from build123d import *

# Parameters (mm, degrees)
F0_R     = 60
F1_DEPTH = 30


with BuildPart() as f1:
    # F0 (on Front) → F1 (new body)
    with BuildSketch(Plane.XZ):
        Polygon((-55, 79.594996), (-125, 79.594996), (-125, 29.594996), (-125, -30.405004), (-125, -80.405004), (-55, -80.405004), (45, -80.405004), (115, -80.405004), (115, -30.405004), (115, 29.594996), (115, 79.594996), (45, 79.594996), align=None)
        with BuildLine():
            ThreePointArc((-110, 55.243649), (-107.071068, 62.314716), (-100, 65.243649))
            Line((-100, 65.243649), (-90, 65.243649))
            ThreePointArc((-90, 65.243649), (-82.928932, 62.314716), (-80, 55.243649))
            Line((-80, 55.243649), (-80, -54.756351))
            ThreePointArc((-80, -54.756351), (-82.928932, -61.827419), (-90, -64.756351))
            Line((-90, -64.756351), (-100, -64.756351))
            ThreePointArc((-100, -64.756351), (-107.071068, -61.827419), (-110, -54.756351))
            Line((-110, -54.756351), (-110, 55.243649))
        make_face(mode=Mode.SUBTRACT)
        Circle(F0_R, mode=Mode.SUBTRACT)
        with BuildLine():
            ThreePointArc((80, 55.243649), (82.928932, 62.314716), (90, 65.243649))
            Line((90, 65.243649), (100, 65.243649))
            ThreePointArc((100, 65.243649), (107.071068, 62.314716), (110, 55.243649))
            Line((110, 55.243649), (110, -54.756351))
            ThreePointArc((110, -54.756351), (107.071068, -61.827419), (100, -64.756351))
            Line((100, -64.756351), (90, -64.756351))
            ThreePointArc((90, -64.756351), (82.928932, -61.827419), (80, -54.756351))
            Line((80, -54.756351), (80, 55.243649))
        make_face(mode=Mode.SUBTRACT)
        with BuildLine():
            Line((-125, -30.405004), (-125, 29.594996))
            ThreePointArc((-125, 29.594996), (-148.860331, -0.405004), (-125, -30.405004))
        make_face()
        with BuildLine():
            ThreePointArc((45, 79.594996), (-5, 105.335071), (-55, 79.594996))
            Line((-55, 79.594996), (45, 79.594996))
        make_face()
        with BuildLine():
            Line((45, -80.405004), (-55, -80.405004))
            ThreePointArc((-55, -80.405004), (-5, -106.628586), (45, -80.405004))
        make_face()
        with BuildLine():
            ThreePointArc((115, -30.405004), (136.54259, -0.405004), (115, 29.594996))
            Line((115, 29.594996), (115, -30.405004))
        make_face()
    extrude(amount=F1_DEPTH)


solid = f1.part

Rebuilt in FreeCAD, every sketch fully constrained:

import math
import FreeCAD as App
import Part
import Sketcher
from FreeCAD import Vector
Q = App.Units.Quantity

doc = App.newDocument("Part")
body = doc.addObject("PartDesign::Body", "Body")

sketch1 = doc.addObject("Sketcher::SketchObject", "Sketch")
body.addObject(sketch1)
sketch1.AttachmentSupport = (doc.XZ_Plane, [""])
sketch1.MapMode = "FlatFace"
sketch1.addGeometry([
    Part.LineSegment(Vector(-125, 79.594996, 0), Vector(-125, 29.594996, 0)),
    Part.ArcOfCircle(Part.Circle(Vector(-118.07041, -0.405004, 0), Vector(0, 0, 1), 30.789921), math.radians(103.006426), math.radians(256.993574)),
    Part.LineSegment(Vector(-125, -30.405004, 0), Vector(-125, -80.405004, 0)),
    Part.LineSegment(Vector(-125, -80.405004, 0), Vector(-55, -80.405004, 0)),
    Part.ArcOfCircle(Part.Circle(Vector(-5, -45.849775, 0), Vector(0, 0, 1), 60.778811), math.radians(-145.351472), math.radians(-34.648528)),
    Part.LineSegment(Vector(45, -80.405004, 0), Vector(115, -80.405004, 0)),
    Part.LineSegment(Vector(115, -80.405004, 0), Vector(115, -30.405004, 0)),
    Part.ArcOfCircle(Part.Circle(Vector(104.882442, -0.405004, 0), Vector(0, 0, 1), 31.660148), math.radians(-71.363222), math.radians(71.363222)),
    Part.LineSegment(Vector(115, 29.594996, 0), Vector(115, 79.594996, 0)),
    Part.LineSegment(Vector(115, 79.594996, 0), Vector(45, 79.594996, 0)),
    Part.ArcOfCircle(Part.Circle(Vector(-5, 43.902626, 0), Vector(0, 0, 1), 61.432445), math.radians(35.521045), math.radians(144.478955)),
    Part.LineSegment(Vector(-55, 79.594996, 0), Vector(-125, 79.594996, 0)),
    Part.Circle(Vector(0, 0, 0), Vector(0, 0, 1), 60),
    Part.LineSegment(Vector(-110, -54.756351, 0), Vector(-110, 55.243649, 0)),
    Part.ArcOfCircle(Part.Circle(Vector(-99.999999, 55.243648, 0), Vector(0, 0, 1), 10.000001), math.radians(90.000006), math.radians(179.999994)),
    Part.LineSegment(Vector(-100, 65.243649, 0), Vector(-90, 65.243649, 0)),
    Part.ArcOfCircle(Part.Circle(Vector(-90.000001, 55.243648, 0), Vector(0, 0, 1), 10.000001), math.radians(0.000006), math.radians(89.999994)),
    Part.LineSegment(Vector(-80, 55.243649, 0), Vector(-80, -54.756351, 0)),
    Part.ArcOfCircle(Part.Circle(Vector(-89.999999, -54.756352, 0), Vector(0, 0, 1), 9.999999), math.radians(-90.000004), math.radians(0.000004)),
    Part.LineSegment(Vector(-90, -64.756351, 0), Vector(-100, -64.756351, 0)),
    Part.ArcOfCircle(Part.Circle(Vector(-100.000001, -54.756352, 0), Vector(0, 0, 1), 9.999999), math.radians(179.999996), math.radians(270.000004)),
    Part.LineSegment(Vector(80, -54.756351, 0), Vector(80, 55.243649, 0)),
    Part.ArcOfCircle(Part.Circle(Vector(90.000001, 55.243648, 0), Vector(0, 0, 1), 10.000001), math.radians(90.000006), math.radians(179.999994)),
    Part.LineSegment(Vector(90, 65.243649, 0), Vector(100, 65.243649, 0)),
    Part.ArcOfCircle(Part.Circle(Vector(99.999999, 55.243648, 0), Vector(0, 0, 1), 10.000001), math.radians(0.000006), math.radians(89.999994)),
    Part.LineSegment(Vector(110, 55.243649, 0), Vector(110, -54.756351, 0)),
    Part.ArcOfCircle(Part.Circle(Vector(100.000001, -54.756352, 0), Vector(0, 0, 1), 9.999999), math.radians(-90.000004), math.radians(0.000004)),
    Part.LineSegment(Vector(100, -64.756351, 0), Vector(90, -64.756351, 0)),
    Part.ArcOfCircle(Part.Circle(Vector(89.999999, -54.756352, 0), Vector(0, 0, 1), 9.999999), math.radians(179.999996), math.radians(270.000004)),
], False)
sketch1.addConstraint([
    Sketcher.Constraint("Coincident", 0, 2, 1, 1),
    Sketcher.Constraint("Coincident", 1, 2, 2, 1),
    Sketcher.Constraint("Coincident", 2, 2, 3, 1),
    Sketcher.Constraint("Coincident", 3, 2, 4, 1),
    Sketcher.Constraint("Coincident", 4, 2, 5, 1),
    Sketcher.Constraint("Coincident", 5, 2, 6, 1),
    Sketcher.Constraint("Coincident", 6, 2, 7, 1),
    Sketcher.Constraint("Coincident", 7, 2, 8, 1),
    Sketcher.Constraint("Coincident", 8, 2, 9, 1),
    Sketcher.Constraint("Coincident", 9, 2, 10, 1),
    Sketcher.Constraint("Coincident", 10, 2, 11, 1),
    Sketcher.Constraint("Coincident", 11, 2, 0, 1),
    Sketcher.Constraint("Tangent", 13, 2, 14, 2),
    Sketcher.Constraint("Tangent", 14, 1, 15, 1),
    Sketcher.Constraint("Tangent", 15, 2, 16, 2),
    Sketcher.Constraint("Tangent", 16, 1, 17, 1),
    Sketcher.Constraint("Tangent", 17, 2, 18, 2),
    Sketcher.Constraint("Tangent", 18, 1, 19, 1),
    Sketcher.Constraint("Tangent", 19, 2, 20, 2),
    Sketcher.Constraint("Tangent", 20, 1, 13, 1),
    Sketcher.Constraint("Tangent", 21, 2, 22, 2),
    Sketcher.Constraint("Tangent", 22, 1, 23, 1),
    Sketcher.Constraint("Tangent", 23, 2, 24, 2),
    Sketcher.Constraint("Tangent", 24, 1, 25, 1),
    Sketcher.Constraint("Tangent", 25, 2, 26, 2),
    Sketcher.Constraint("Tangent", 26, 1, 27, 1),
    Sketcher.Constraint("Tangent", 27, 2, 28, 2),
    Sketcher.Constraint("Tangent", 28, 1, 21, 1),
    Sketcher.Constraint("Vertical", 0),
    Sketcher.Constraint("Vertical", 2),
    Sketcher.Constraint("Horizontal", 3),
    Sketcher.Constraint("Horizontal", 5),
    Sketcher.Constraint("Vertical", 6),
    Sketcher.Constraint("Vertical", 8),
    Sketcher.Constraint("Horizontal", 9),
    Sketcher.Constraint("Horizontal", 11),
    Sketcher.Constraint("Vertical", 13),
    Sketcher.Constraint("Horizontal", 15),
    Sketcher.Constraint("Vertical", 17),
    Sketcher.Constraint("Horizontal", 19),
    Sketcher.Constraint("Vertical", 21),
    Sketcher.Constraint("Horizontal", 23),
    Sketcher.Constraint("Vertical", 25),
    Sketcher.Constraint("Horizontal", 27),
    Sketcher.Constraint("Coincident", 12, 3, -1, 1),
    Sketcher.Constraint("Equal", 14, 16),
    Sketcher.Constraint("Equal", 16, 18),
    Sketcher.Constraint("Equal", 18, 20),
    Sketcher.Constraint("Equal", 20, 22),
    Sketcher.Constraint("Equal", 22, 24),
    Sketcher.Constraint("Equal", 24, 26),
    Sketcher.Constraint("Equal", 26, 28),
    Sketcher.Constraint("Symmetric", 16, 3, 22, 3, -2),
    Sketcher.Constraint("Symmetric", 20, 3, 26, 3, -2),
    Sketcher.Constraint("Horizontal", 1, 3, 7, 3),
    Sketcher.Constraint("Horizontal", 3, 2, 4, 2),
    Sketcher.Constraint("Horizontal", 1, 2, 6, 2),
    Sketcher.Constraint("Horizontal", 0, 2, 7, 2),
    Sketcher.Constraint("Horizontal", 9, 2, 10, 2),
    Sketcher.Constraint("Vertical", 4, 3, 10, 3),
    Sketcher.Constraint("Vertical", 0, 2, 1, 2),
    Sketcher.Constraint("Vertical", 4, 2, 9, 2),
    Sketcher.Constraint("Equal", 3, 5),
    Sketcher.Constraint("Equal", 0, 2),
    Sketcher.Constraint("Diameter", 12, Q("120 mm")),
    Sketcher.Constraint("Radius", 14, Q("10.000001 mm")),
    Sketcher.Constraint("DistanceX", 3, 1, 3, 2, Q("70 mm")),
    Sketcher.Constraint("DistanceX", 15, 1, 15, 2, Q("10 mm")),
    Sketcher.Constraint("DistanceY", 0, 2, 0, 1, Q("50 mm")),
    Sketcher.Constraint("DistanceY", 13, 1, 13, 2, Q("110 mm")),
    Sketcher.Constraint("DistanceX", 4, 3, -1, 1, Q("5 mm")),
    Sketcher.Constraint("DistanceX", 14, 3, -1, 1, Q("99.999999 mm")),
    Sketcher.Constraint("DistanceX", 0, 2, -1, 1, Q("125 mm")),
    Sketcher.Constraint("DistanceY", 1, 3, 0, 2, Q("30 mm")),
    Sketcher.Constraint("Radius", 1, Q("30.789921 mm")),
    Sketcher.Constraint("Radius", 4, Q("60.778811 mm")),
    Sketcher.Constraint("Radius", 7, Q("31.660148 mm")),
    Sketcher.Constraint("Radius", 10, Q("61.432445 mm")),
    Sketcher.Constraint("DistanceY", 18, 3, -1, 1, Q("54.756352 mm")),
    Sketcher.Constraint("DistanceY", 1, 3, 14, 3, Q("55.648652 mm")),
])
pad1 = doc.addObject("PartDesign::Pad", "Pad")
body.addObject(pad1)
pad1.Profile = sketch1
pad1.Length = 30

doc.recompute()
